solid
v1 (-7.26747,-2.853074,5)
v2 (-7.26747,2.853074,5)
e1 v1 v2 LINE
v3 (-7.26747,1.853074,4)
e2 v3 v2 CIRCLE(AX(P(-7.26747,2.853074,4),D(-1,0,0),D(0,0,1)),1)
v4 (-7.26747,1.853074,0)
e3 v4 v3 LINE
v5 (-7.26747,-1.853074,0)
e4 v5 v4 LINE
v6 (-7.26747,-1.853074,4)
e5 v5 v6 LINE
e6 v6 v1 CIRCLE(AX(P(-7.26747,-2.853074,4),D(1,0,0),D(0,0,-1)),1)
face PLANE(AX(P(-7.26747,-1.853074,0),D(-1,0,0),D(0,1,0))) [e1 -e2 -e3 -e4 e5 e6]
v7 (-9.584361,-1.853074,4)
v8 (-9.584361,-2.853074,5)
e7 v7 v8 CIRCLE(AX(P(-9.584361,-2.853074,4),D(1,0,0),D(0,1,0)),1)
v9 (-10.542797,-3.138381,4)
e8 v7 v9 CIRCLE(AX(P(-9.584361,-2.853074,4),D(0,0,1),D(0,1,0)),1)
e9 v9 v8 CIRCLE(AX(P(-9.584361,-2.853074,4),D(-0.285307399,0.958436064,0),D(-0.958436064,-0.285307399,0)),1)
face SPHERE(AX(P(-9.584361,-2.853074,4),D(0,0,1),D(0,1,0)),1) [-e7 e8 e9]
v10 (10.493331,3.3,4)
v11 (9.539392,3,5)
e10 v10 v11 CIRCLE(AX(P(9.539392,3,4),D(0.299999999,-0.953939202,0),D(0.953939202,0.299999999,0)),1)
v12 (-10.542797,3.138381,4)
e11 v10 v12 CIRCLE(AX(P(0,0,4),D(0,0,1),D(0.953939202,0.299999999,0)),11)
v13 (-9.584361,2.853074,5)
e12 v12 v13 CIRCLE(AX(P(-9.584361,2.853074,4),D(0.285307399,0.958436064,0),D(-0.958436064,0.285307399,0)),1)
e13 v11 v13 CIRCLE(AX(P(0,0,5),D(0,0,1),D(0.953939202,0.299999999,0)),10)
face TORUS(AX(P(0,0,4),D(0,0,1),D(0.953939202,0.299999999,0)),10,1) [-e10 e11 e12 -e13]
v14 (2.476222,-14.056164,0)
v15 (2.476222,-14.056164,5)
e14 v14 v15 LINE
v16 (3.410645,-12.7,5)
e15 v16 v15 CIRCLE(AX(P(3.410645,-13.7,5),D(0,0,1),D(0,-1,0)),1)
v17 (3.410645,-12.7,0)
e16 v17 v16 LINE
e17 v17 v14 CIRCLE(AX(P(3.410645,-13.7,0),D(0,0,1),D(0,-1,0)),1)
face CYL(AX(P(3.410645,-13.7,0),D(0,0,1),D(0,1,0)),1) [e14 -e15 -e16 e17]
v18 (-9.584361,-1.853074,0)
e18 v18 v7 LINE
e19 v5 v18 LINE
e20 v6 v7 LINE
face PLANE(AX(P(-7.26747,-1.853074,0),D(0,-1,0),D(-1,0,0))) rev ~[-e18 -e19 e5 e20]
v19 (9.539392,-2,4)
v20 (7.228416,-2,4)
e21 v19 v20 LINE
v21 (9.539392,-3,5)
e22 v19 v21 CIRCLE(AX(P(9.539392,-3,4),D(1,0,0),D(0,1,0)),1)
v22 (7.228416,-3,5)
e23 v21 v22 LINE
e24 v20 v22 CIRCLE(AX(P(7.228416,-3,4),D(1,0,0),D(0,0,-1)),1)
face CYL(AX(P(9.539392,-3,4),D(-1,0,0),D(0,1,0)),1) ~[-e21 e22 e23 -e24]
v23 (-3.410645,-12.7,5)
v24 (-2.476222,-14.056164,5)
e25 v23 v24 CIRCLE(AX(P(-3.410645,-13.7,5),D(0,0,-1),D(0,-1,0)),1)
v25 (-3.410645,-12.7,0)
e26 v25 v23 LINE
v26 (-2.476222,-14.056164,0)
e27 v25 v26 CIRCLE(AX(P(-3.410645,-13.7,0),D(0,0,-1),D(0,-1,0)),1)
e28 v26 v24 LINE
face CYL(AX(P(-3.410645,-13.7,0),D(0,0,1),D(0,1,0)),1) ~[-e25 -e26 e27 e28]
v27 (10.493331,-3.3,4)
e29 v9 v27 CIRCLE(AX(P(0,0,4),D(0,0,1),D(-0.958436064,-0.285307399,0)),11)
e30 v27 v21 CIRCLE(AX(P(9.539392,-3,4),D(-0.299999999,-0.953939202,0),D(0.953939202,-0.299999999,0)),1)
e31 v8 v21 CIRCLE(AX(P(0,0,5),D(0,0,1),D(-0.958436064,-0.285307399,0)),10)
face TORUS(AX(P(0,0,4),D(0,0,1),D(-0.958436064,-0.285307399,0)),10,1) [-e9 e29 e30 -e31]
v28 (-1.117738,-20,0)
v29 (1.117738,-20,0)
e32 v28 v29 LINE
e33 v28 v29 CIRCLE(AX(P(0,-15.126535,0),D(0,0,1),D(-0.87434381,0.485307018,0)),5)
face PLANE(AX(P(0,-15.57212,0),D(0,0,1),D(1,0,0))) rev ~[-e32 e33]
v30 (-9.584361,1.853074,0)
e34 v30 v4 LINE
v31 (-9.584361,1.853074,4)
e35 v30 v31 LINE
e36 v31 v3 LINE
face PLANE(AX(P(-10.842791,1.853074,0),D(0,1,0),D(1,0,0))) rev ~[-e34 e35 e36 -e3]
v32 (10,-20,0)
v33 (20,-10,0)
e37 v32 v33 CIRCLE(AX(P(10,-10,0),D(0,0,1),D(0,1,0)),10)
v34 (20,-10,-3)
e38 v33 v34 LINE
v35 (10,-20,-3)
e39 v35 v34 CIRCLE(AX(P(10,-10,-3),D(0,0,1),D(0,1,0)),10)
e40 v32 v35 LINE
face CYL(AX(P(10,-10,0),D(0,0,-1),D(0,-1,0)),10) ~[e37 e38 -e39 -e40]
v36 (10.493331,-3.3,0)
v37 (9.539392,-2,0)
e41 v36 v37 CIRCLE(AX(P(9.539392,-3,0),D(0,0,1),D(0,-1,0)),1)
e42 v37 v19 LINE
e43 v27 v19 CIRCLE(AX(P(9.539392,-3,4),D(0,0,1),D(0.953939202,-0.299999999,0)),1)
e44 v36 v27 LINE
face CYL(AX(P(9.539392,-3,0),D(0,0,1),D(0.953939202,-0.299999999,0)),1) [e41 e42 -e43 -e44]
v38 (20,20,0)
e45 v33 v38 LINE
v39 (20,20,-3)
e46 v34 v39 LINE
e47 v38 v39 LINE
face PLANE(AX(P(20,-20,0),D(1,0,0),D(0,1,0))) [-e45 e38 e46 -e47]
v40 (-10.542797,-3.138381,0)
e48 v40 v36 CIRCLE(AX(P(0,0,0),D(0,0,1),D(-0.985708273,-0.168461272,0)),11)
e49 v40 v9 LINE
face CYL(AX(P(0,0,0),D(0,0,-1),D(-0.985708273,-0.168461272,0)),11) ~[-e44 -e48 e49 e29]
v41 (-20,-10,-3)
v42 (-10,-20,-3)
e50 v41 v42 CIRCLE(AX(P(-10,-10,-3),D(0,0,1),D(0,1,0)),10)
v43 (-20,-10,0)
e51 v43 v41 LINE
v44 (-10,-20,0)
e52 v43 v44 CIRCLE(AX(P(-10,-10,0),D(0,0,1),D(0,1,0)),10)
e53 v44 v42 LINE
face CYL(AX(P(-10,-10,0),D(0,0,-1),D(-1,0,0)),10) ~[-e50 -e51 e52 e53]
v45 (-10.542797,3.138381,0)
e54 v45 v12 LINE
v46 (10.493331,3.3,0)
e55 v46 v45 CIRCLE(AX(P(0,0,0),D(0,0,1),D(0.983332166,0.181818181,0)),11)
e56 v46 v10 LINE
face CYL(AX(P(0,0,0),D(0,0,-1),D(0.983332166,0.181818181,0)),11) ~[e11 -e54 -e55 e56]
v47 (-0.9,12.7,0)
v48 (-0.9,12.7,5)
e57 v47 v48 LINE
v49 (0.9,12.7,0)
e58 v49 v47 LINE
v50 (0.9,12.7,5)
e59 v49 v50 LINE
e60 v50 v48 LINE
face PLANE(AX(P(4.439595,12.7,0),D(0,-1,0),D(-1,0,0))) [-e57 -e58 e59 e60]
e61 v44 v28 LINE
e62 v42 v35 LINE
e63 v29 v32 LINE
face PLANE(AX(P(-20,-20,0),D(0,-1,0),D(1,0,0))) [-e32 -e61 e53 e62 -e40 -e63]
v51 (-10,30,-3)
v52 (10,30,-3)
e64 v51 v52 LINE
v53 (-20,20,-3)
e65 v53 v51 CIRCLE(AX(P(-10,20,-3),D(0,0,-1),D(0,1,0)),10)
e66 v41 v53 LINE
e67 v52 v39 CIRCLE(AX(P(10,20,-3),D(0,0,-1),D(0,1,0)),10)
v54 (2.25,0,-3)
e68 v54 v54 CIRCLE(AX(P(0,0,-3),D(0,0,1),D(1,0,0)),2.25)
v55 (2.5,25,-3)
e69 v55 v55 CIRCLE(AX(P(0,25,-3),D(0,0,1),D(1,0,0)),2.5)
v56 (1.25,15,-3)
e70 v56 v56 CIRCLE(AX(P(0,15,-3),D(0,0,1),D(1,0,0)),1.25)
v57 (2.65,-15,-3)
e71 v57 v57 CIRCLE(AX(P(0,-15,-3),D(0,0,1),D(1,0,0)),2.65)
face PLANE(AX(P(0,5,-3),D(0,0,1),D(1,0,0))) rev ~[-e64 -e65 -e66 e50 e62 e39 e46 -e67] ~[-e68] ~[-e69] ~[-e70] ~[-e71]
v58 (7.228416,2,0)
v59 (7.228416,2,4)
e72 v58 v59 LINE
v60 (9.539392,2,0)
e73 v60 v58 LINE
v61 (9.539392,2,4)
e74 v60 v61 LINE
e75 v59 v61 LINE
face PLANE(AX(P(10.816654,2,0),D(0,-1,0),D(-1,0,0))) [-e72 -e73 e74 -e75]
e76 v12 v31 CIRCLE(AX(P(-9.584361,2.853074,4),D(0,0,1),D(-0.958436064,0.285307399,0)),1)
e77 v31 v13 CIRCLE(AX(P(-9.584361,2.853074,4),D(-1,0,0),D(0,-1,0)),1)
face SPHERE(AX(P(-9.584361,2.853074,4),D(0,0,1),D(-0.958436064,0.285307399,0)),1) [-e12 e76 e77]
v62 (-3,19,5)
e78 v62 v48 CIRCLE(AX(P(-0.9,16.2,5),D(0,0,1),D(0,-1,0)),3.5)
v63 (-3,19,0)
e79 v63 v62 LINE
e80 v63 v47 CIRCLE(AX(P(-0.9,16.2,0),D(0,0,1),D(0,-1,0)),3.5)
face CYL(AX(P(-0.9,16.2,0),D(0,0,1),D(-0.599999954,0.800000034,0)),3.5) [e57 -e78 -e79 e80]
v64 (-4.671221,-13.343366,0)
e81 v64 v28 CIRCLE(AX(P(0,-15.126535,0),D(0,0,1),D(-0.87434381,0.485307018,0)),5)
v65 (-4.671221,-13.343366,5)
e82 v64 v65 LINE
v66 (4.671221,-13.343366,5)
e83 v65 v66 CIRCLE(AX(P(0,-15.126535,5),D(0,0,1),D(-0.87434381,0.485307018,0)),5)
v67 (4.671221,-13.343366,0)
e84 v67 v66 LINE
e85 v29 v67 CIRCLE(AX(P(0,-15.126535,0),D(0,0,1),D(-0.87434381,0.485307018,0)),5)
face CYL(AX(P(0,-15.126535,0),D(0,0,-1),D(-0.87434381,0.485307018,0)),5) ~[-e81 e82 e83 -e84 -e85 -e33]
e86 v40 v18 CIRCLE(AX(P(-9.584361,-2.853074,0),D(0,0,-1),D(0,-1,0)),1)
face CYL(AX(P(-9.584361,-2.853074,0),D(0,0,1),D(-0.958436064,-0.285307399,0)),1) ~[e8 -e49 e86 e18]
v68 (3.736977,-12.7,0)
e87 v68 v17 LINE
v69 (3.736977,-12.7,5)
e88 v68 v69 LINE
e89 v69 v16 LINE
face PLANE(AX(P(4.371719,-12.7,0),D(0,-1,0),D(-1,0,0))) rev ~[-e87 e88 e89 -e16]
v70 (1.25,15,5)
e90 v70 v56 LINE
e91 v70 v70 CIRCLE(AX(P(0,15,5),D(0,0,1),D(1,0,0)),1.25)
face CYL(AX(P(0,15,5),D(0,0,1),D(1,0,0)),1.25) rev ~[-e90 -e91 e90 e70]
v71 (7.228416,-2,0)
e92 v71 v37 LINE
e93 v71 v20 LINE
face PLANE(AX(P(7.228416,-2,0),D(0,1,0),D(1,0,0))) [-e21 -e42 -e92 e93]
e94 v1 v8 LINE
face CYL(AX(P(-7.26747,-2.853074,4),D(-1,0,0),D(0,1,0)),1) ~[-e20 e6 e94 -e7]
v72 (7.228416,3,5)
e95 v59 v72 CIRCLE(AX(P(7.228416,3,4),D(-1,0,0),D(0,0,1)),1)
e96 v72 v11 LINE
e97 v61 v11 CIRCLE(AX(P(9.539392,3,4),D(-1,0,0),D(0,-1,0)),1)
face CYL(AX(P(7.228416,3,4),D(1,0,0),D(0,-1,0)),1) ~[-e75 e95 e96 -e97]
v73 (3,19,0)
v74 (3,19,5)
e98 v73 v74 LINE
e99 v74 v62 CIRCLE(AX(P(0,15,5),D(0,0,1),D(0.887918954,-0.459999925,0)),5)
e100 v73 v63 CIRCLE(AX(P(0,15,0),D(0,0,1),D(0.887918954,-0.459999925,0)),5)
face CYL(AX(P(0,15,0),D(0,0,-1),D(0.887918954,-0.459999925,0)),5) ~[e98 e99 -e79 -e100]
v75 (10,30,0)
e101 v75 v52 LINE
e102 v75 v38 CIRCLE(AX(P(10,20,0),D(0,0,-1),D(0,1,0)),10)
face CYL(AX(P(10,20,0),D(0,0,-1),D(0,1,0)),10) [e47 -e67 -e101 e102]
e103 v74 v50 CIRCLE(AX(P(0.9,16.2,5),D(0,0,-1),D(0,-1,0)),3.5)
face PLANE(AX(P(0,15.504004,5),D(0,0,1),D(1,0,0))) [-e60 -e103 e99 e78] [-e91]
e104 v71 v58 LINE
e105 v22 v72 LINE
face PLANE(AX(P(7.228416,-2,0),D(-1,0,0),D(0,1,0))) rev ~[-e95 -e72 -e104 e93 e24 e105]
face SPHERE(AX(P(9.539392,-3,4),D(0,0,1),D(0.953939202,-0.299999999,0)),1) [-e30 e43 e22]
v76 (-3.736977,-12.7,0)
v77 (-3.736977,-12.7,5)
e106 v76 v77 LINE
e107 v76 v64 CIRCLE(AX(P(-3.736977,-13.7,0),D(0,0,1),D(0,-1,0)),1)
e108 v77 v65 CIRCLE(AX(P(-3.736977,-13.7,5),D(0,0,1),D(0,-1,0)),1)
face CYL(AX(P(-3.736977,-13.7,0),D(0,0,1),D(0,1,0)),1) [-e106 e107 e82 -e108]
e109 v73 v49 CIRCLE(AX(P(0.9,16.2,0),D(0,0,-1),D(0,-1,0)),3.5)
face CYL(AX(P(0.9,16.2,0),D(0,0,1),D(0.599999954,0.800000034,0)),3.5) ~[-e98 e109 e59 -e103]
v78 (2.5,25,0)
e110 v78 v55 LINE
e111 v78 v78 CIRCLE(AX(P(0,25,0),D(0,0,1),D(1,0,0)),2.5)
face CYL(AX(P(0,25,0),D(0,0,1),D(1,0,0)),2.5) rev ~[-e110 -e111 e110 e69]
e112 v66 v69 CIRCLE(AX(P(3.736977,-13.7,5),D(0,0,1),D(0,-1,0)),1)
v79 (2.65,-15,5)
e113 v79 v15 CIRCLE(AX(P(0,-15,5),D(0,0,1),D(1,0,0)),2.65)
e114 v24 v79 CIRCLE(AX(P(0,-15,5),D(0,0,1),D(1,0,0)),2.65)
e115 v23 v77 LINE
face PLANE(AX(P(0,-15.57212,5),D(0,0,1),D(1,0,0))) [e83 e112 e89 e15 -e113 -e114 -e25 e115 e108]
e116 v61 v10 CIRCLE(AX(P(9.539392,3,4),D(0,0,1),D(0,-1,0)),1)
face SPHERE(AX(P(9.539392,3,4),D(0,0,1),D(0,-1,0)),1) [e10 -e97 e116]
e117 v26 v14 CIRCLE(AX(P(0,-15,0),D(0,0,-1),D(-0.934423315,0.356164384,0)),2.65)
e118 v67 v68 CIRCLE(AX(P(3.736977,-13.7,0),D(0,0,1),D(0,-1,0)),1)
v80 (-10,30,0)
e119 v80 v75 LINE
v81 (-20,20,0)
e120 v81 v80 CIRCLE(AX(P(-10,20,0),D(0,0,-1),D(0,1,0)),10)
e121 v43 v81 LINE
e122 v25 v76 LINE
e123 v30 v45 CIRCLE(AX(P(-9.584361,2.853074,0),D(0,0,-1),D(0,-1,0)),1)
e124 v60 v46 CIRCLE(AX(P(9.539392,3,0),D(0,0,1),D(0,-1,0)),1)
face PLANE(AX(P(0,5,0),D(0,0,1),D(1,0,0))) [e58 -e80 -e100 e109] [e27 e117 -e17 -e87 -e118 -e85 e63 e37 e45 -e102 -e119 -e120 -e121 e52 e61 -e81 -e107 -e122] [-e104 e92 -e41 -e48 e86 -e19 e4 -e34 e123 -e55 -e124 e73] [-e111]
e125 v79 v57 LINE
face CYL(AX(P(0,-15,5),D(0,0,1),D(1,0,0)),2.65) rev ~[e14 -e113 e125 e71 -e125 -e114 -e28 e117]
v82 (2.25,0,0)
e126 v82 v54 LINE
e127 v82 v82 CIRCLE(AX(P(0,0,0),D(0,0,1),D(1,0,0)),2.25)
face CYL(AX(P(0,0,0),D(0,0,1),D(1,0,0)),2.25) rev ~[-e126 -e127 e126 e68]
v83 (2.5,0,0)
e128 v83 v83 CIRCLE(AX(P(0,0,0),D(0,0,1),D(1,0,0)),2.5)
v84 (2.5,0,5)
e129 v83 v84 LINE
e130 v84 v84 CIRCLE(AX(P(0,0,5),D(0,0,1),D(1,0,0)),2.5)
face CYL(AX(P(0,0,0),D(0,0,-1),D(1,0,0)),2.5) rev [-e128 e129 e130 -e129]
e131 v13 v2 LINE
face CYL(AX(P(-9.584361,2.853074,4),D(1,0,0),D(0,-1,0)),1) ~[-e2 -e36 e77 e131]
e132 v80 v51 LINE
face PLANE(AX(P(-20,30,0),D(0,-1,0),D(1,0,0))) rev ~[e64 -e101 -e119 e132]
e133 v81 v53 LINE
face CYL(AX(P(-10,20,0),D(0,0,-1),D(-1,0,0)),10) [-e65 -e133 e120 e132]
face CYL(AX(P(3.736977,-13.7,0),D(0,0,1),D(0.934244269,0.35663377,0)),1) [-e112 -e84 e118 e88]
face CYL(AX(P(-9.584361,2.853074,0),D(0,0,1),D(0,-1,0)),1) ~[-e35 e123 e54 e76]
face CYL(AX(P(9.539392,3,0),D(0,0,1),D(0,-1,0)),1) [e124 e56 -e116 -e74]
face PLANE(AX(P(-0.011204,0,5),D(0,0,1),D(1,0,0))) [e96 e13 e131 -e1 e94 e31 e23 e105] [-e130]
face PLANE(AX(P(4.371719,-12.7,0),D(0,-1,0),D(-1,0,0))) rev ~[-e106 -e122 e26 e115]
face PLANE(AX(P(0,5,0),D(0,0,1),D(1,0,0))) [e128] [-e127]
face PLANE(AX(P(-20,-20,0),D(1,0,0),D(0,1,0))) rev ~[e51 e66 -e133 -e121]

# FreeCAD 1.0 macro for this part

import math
import FreeCAD as App
import Part
import Sketcher
from FreeCAD import Vector


def edges_at(feature, points):
    """Names of the edges that pass closest to the given points."""
    edges = feature.Shape.Edges
    near = lambda p: min(range(len(edges)), key=lambda i: edges[i].distToShape(Part.Vertex(*p))[0])
    return sorted({f"Edge{near(p) + 1}" for p in points})


def add_polygon(sketch, points):
    """Adds a closed chain of lines whose ends are joined by coincident constraints."""
    first, n = sketch.GeometryCount, len(points)
    for a, b in zip(points, points[1:] + points[:1]):
        sketch.addGeometry(Part.LineSegment(App.Vector(*a, 0), App.Vector(*b, 0)), False)
    for i in range(n):
        sketch.addConstraint(Sketcher.Constraint("Coincident", first + i, 2, first + (i + 1) % n, 1))

doc = App.newDocument("Part")
body = doc.addObject("PartDesign::Body", "Body")

# Sketch on XY plane
sketch1 = body.newObject("Sketcher::SketchObject", "Sketch")
sketch1.AttachmentSupport = (doc.getObject("XY_Plane"), [""])
sketch1.MapMode = "FlatFace"
sketch1.addGeometry([
    Part.ArcOfCircle(Part.Circle(Vector(0, 0, 0), Vector(0, 0, 1), 11), math.radians(-170.301634), math.radians(-10.475682)),  # 0
    Part.LineSegment(Vector(10.816654, -2, 0), Vector(7.228416, -2, 0)),  # 1
    Part.LineSegment(Vector(7.228416, -2, 0), Vector(7.228416, 2, 0)),  # 2
    Part.LineSegment(Vector(7.228416, 2, 0), Vector(10.816654, 2, 0)),  # 3
    Part.ArcOfCircle(Part.Circle(Vector(0, 0, 0), Vector(0, 0, 1), 11), math.radians(10.475682), math.radians(170.301634)),  # 4
    Part.LineSegment(Vector(-10.842791, 1.853074, 0), Vector(-7.26747, 1.853074, 0)),  # 5
    Part.LineSegment(Vector(-7.26747, 1.853074, 0), Vector(-7.26747, -1.853074, 0)),  # 6
    Part.LineSegment(Vector(-7.26747, -1.853074, 0), Vector(-10.842791, -1.853074, 0)),  # 7
    Part.Circle(Vector(0, 0, 0), Vector(0, 0, 1), 2.5),  # 8
], False)
sketch1.addConstraint([
    Sketcher.Constraint("Coincident", 0, 2, 1, 1),
    Sketcher.Constraint("Coincident", 1, 2, 2, 1),
    Sketcher.Constraint("Coincident", 2, 2, 3, 1),
    Sketcher.Constraint("Coincident", 3, 2, 4, 1),
    Sketcher.Constraint("Coincident", 4, 2, 5, 1),
    Sketcher.Constraint("Coincident", 5, 2, 6, 1),
    Sketcher.Constraint("Coincident", 6, 2, 7, 1),
    Sketcher.Constraint("Coincident", 7, 2, 0, 1),
    Sketcher.Constraint("Horizontal", 1),
    Sketcher.Constraint("Vertical", 2),
    Sketcher.Constraint("Horizontal", 3),
    Sketcher.Constraint("Horizontal", 5),
    Sketcher.Constraint("Vertical", 6),
    Sketcher.Constraint("Horizontal", 7),
    Sketcher.Constraint("Coincident", 0, 3, -1, 1),
    Sketcher.Constraint("Coincident", 4, 3, -1, 1),
    Sketcher.Constraint("Coincident", 8, 3, -1, 1),
    Sketcher.Constraint("Equal", 0, 4),
    Sketcher.Constraint("Vertical", 0, 2, 3, 2),
    Sketcher.Constraint("Vertical", 4, 2, 7, 2),
    Sketcher.Constraint("Diameter", 8, 5.0),
    Sketcher.Constraint("Radius", 0, 11.0),
    Sketcher.Constraint("DistanceY", 2, 1, 2, 2, 4.0),
    Sketcher.Constraint("DistanceX", 5, 1, 5, 2, 3.575321),
    Sketcher.Constraint("DistanceY", 6, 2, 6, 1, 3.706148),
    Sketcher.Constraint("DistanceX", 1, 2, 1, 1, 3.588238),
])
pad1 = body.newObject("PartDesign::Pad", "Pad")
pad1.Profile = sketch1
pad1.Length = 5

# Sketch on XY plane
sketch2 = body.newObject("Sketcher::SketchObject", "Sketch001")
sketch2.AttachmentSupport = (doc.getObject("XY_Plane"), [""])
sketch2.MapMode = "FlatFace"
add_polygon(sketch2, [(-20, 30), (-20, -20), (20, -20), (20, 30)])  # lines 0-3
sketch2.addGeometry(Part.Circle(Vector(0, -15, 0), Vector(0, 0, 1), 2.5), False)  # 4
sketch2.addGeometry(Part.Circle(Vector(0, 0, 0), Vector(0, 0, 1), 2.25), False)  # 5
sketch2.addGeometry(Part.Circle(Vector(0, 25, 0), Vector(0, 0, 1), 2.5), False)  # 6
sketch2.addConstraint([
    Sketcher.Constraint("Vertical", 0),
    Sketcher.Constraint("Horizontal", 1),
    Sketcher.Constraint("Vertical", 2),
    Sketcher.Constraint("Horizontal", 3),
    Sketcher.Constraint("Coincident", 5, 3, -1, 1),
    Sketcher.Constraint("Equal", 4, 6),
    Sketcher.Constraint("PointOnObject", 4, 3, -2),
    Sketcher.Constraint("PointOnObject", 6, 3, -2),
    Sketcher.Constraint("Diameter", 4, 5.0),
    Sketcher.Constraint("Diameter", 5, 4.5),
    Sketcher.Constraint("DistanceX", 1, 1, 1, 2, 40.0),
    Sketcher.Constraint("DistanceY", 0, 2, 0, 1, 50.0),
    Sketcher.Constraint("DistanceY", 4, 3, -1, 1, 15.0),
    Sketcher.Constraint("DistanceY", -1, 1, 6, 3, 25.0),
    Sketcher.Constraint("DistanceX", 0, 2, -1, 1, 20.0),
    Sketcher.Constraint("DistanceY", 0, 2, -1, 1, 20.0),
])
pad2 = body.newObject("PartDesign::Pad", "Pad001")
pad2.Profile = sketch2
pad2.Length = 3
pad2.Reversed = True
doc.recompute()

fillet = body.newObject("PartDesign::Fillet", "Fillet")
fillet.Base = (pad2, edges_at(pad2, [
    (20, -20, -1.5),
    (-20, -20, -1.5),
    (-20, 30, -1.5),
    (20, 30, -1.5),
]))
fillet.Radius = 10

# Sketch on XY plane
sketch3 = body.newObject("Sketcher::SketchObject", "Sketch002")
sketch3.AttachmentSupport = (doc.getObject("XY_Plane"), [""])
sketch3.MapMode = "FlatFace"
sketch3.addGeometry([
    Part.ArcOfCircle(Part.Circle(Vector(0, -15.126535, 0), Vector(0, 0, 1), 5), math.radians(150.967411), math.radians(389.032589)),
    Part.LineSegment(Vector(4.371719, -12.7, 0), Vector(-4.371719, -12.7, 0)),
    Part.ArcOfCircle(Part.Circle(Vector(0, 15, 0), Vector(0, 0, 1), 5), math.radians(-27.387103), math.radians(207.387103)),
    Part.LineSegment(Vector(-4.439595, 12.7, 0), Vector(4.439595, 12.7, 0)),
], False)
sketch3.addConstraint([
    Sketcher.Constraint("Coincident", 0, 1, 1, 2),
    Sketcher.Constraint("Coincident", 1, 1, 0, 2),
    Sketcher.Constraint("Coincident", 2, 1, 3, 2),
    Sketcher.Constraint("Coincident", 3, 1, 2, 2),
    Sketcher.Constraint("Horizontal", 1),
    Sketcher.Constraint("Horizontal", 3),
    Sketcher.Constraint("Equal", 0, 2),
    Sketcher.Constraint("PointOnObject", 0, 3, -2),
    Sketcher.Constraint("PointOnObject", 2, 3, -2),
    Sketcher.Constraint("Radius", 0, 5.0),
    Sketcher.Constraint("DistanceY", -1, 1, 2, 3, 15.0),
    Sketcher.Constraint("DistanceY", 0, 1, -1, 1, 12.7),
    Sketcher.Constraint("DistanceY", -1, 1, 2, 1, 12.7),
    Sketcher.Constraint("DistanceX", 1, 2, 1, 1, 8.743438),
])
pad3 = body.newObject("PartDesign::Pad", "Pad002")
pad3.Profile = sketch3
pad3.Length = 5

# Sketch on XY plane
sketch4 = body.newObject("Sketcher::SketchObject", "Sketch003")
sketch4.AttachmentSupport = (doc.getObject("XY_Plane"), [""])
sketch4.MapMode = "FlatFace"
sketch4.AttachmentOffset = App.Placement(Vector(0, 0, 5), App.Rotation())
sketch4.addGeometry([
    Part.Circle(Vector(0, 15, 0), Vector(0, 0, 1), 1.25),
    Part.Circle(Vector(0, -15, 0), Vector(0, 0, 1), 2.65),
], False)
sketch4.addConstraint([
    Sketcher.Constraint("Symmetric", 0, 3, 1, 3, -1, 1),
    Sketcher.Constraint("PointOnObject", 0, 3, -2),
    Sketcher.Constraint("Diameter", 0, 2.5),
    Sketcher.Constraint("Diameter", 1, 5.3),
    Sketcher.Constraint("DistanceY", -1, 1, 0, 3, 15.0),
])
pocket1 = body.newObject("PartDesign::Pocket", "Pocket")
pocket1.Profile = sketch4
pocket1.Type = "ThroughAll"
doc.recompute()

fillet2 = body.newObject("PartDesign::Fillet", "Fillet001")
fillet2.Base = (pocket1, edges_at(pocket1, [(1.316, -12.7, 2.5), (-1.316, -12.7, 2.5)]))
fillet2.Radius = 1
doc.recompute()

fillet3 = body.newObject("PartDesign::Fillet", "Fillet002")
fillet3.Base = (fillet2, edges_at(fillet2, [(-4.372, -12.7, 2.5)]))
fillet3.Radius = 1
doc.recompute()

fillet4 = body.newObject("PartDesign::Fillet", "Fillet003")
fillet4.Base = (fillet3, edges_at(fillet3, [(4.372, -12.7, 2.5)]))
fillet4.Radius = 1
doc.recompute()

fillet5 = body.newObject("PartDesign::Fillet", "Fillet004")
fillet5.Base = (fillet4, edges_at(fillet4, [(-4.44, 12.7, 2.5), (4.44, 12.7, 2.5)]))
fillet5.Radius = 3.5
doc.recompute()

fillet6 = body.newObject("PartDesign::Fillet", "Fillet005")
fillet6.Base = (fillet5, edges_at(fillet5, [(-10.843, 1.853, 2.5), (-10.843, -1.853, 2.5)]))
fillet6.Radius = 1
doc.recompute()

fillet7 = body.newObject("PartDesign::Fillet", "Fillet006")
fillet7.Base = (fillet6, edges_at(fillet6, [(10.817, 2, 2.5), (10.817, -2, 2.5)]))
fillet7.Radius = 1
doc.recompute()

fillet8 = body.newObject("PartDesign::Fillet", "Fillet007")
fillet8.Base = (fillet7, edges_at(fillet7, [(-0.085, -11, 5)]))
fillet8.Radius = 1
doc.recompute()

fillet9 = body.newObject("PartDesign::Fillet", "Fillet008")
fillet9.Base = (fillet8, edges_at(fillet8, [(-0.085, 11, 5)]))
fillet9.Radius = 1

doc.recompute()
